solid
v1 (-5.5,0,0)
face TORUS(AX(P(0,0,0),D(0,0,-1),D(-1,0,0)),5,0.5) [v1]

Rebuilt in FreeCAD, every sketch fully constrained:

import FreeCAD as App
import Part
import Sketcher

V = App.Vector
Q = App.Units.Quantity

doc = App.newDocument("Part")
body = doc.addObject("PartDesign::Body", "Body")

sketch1 = body.newObject("Sketcher::SketchObject", "Sketch")
sketch1.AttachmentSupport = (doc.getObject("XZ_Plane"), [""])
sketch1.MapMode = "FlatFace"
sketch1.addGeometry(Part.Circle(V(5, 0, 0), V(0, 0, 1), 0.5), False)
sketch1.addConstraint([
    Sketcher.Constraint("PointOnObject", 0, 3, -1),
    Sketcher.Constraint("Diameter", 0, Q("1 mm")),
    Sketcher.Constraint("DistanceX", -1, 1, 0, 3, Q("5 mm")),
])
revolution = body.newObject("PartDesign::Revolution", "Revolution")
revolution.Profile = sketch1
revolution.ReferenceAxis = (sketch1, ["V_Axis"])
revolution.Angle = 360

doc.recompute()
